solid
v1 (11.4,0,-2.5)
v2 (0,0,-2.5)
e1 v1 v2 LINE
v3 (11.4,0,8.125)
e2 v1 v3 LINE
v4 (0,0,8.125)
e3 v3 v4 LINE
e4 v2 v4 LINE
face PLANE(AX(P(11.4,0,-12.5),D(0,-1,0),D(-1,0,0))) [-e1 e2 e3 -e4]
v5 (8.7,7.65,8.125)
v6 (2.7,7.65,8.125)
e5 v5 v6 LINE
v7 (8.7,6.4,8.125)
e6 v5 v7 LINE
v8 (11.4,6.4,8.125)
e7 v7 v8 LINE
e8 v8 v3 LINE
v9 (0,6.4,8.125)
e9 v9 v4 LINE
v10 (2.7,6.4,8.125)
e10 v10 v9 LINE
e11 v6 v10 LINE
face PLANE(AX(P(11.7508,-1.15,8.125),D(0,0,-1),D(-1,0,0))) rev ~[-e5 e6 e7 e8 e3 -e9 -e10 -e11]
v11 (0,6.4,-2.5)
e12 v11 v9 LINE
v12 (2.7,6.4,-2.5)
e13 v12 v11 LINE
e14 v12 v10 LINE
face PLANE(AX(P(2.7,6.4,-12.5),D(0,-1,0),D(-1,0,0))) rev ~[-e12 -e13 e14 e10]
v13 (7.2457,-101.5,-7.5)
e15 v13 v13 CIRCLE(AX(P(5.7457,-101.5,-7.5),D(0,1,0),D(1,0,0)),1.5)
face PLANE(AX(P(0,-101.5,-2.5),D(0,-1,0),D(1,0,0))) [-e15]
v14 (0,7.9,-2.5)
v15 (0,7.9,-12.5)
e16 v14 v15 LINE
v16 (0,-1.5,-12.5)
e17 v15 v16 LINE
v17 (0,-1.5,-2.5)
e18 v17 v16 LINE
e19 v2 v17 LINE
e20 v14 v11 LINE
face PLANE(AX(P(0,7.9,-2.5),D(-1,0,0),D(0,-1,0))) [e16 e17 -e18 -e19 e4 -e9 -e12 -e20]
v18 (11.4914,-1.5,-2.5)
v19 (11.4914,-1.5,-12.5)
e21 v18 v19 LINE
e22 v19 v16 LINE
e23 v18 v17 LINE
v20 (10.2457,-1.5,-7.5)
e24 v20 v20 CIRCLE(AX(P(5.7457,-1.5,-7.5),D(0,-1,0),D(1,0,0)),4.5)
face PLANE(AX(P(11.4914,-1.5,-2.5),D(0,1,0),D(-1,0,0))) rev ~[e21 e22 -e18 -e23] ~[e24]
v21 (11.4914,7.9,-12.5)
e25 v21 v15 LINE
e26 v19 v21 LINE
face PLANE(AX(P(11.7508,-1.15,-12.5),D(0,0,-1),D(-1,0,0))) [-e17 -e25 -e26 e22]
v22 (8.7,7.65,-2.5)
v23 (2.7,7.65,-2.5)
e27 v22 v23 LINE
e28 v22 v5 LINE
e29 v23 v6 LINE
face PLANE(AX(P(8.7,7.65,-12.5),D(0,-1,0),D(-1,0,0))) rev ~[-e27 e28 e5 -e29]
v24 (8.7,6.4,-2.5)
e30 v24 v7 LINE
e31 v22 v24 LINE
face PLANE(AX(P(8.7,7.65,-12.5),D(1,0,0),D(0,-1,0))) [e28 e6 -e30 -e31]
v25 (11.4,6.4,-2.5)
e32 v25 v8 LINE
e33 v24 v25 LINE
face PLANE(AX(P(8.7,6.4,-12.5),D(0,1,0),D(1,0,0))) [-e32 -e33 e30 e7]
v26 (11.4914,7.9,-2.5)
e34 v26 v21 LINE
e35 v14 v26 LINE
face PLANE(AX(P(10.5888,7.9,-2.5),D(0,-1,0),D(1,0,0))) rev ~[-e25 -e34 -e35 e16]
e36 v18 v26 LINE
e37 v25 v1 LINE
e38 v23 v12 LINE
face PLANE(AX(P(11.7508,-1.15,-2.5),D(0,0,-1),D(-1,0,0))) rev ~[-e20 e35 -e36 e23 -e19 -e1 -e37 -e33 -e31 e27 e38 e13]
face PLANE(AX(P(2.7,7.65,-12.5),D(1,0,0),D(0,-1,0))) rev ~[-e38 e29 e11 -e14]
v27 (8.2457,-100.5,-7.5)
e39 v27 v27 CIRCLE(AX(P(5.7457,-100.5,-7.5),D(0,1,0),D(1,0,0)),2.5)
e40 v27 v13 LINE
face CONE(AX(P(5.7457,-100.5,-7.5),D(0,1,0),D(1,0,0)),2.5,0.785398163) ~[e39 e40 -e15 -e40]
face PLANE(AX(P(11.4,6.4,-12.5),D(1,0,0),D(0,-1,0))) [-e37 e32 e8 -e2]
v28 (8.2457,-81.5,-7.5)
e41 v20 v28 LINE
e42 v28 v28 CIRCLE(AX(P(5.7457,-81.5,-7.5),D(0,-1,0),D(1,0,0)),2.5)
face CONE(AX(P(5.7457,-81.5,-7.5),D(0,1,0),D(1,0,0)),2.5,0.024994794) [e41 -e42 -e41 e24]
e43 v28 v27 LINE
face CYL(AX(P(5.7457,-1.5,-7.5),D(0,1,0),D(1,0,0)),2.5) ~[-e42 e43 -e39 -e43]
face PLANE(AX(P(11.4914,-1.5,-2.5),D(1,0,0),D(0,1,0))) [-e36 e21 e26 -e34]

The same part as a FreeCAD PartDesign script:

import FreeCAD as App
import Part
import Sketcher
from FreeCAD import Vector


def edges_at(feature, points):
    """Names of the edges that pass closest to the given points."""
    edges = feature.Shape.Edges
    near = lambda p: min(range(len(edges)), key=lambda i: edges[i].distToShape(Part.Vertex(*p))[0])
    return sorted({f"Edge{near(p) + 1}" for p in points})


def add_polygon(sketch, points):
    """Adds a closed chain of lines whose ends are joined by coincident constraints."""
    first, n = sketch.GeometryCount, len(points)
    for a, b in zip(points, points[1:] + points[:1]):
        sketch.addGeometry(Part.LineSegment(App.Vector(*a, 0), App.Vector(*b, 0)), False)
    for i in range(n):
        sketch.addConstraint(Sketcher.Constraint("Coincident", first + i, 2, first + (i + 1) % n, 1))

doc = App.newDocument("Part")
body = doc.addObject("PartDesign::Body", "Body")

sketch1 = body.newObject("Sketcher::SketchObject", "Sketch")
sketch1.AttachmentSupport = (doc.getObject("XY_Plane"), [""])
sketch1.MapMode = "FlatFace"
sketch1.AttachmentOffset = App.Placement(Vector(0, 0, -2.5), App.Rotation())
add_polygon(sketch1, [(11, 8), (11, -2), (0, -2), (0, 8)])
sketch1.addConstraint(Sketcher.Constraint("Vertical", 0))
sketch1.addConstraint(Sketcher.Constraint("Horizontal", 1))
sketch1.addConstraint(Sketcher.Constraint("Vertical", 2))
sketch1.addConstraint(Sketcher.Constraint("Horizontal", 3))
sketch1.addConstraint(Sketcher.Constraint("PointOnObject", 1, 2, -2))
sketch1.addConstraint(Sketcher.Constraint("DistanceY", 0, 2, 0, 1, 9.4))
sketch1.addConstraint(Sketcher.Constraint("DistanceY", 0, 2, -1, 1, 1.5))
sketch1.addConstraint(Sketcher.Constraint("DistanceX", 1, 2, 1, 1, 11.4914))
pad1 = body.newObject("PartDesign::Pad", "Pad")
pad1.Profile = sketch1
pad1.Length = 10
pad1.Reversed = True

sketch2 = body.newObject("Sketcher::SketchObject", "Sketch001")
sketch2.AttachmentSupport = (doc.getObject("XZ_Plane"), [""])
sketch2.MapMode = "FlatFace"
sketch2.AttachmentOffset = App.Placement(Vector(0, 0, 1.5), App.Rotation())
sketch2.addGeometry(Part.Circle(Vector(5.7, -7.5, 0), Vector(0, 0, 1), 2.5), False)
sketch2.addConstraint(Sketcher.Constraint("Diameter", 0, 5.0))
sketch2.addConstraint(Sketcher.Constraint("DistanceY", 0, 3, -1, 1, 7.5))
sketch2.addConstraint(Sketcher.Constraint("DistanceX", -1, 1, 0, 3, 5.7457))
pad2 = body.newObject("PartDesign::Pad", "Pad001")
pad2.Profile = sketch2
pad2.Length = 100
doc.recompute()

chamfer = body.newObject("PartDesign::Chamfer", "Chamfer")
chamfer.Base = (pad2, edges_at(pad2, [(3.246, -1.5, -7.5)]))
chamfer.ChamferType = "Two distances"
chamfer.Size = 2
chamfer.Size2 = 80
doc.recompute()

chamfer2 = body.newObject("PartDesign::Chamfer", "Chamfer001")
chamfer2.Base = (chamfer, edges_at(chamfer, [(3.246, -101.5, -7.5)]))
chamfer2.Size = 1

sketch3 = body.newObject("Sketcher::SketchObject", "Sketch002")
sketch3.AttachmentSupport = (doc.getObject("XY_Plane"), [""])
sketch3.MapMode = "FlatFace"
sketch3.AttachmentOffset = App.Placement(Vector(0, 0, -12.5), App.Rotation())
add_polygon(sketch3, [(2.7, 7.7), (8.7, 7.7), (8.7, 6.4), (11.4, 6.4), (11.4, 0), (0, 0), (0, 6.4), (2.7, 6.4)])
sketch3.addConstraint(Sketcher.Constraint("Horizontal", 0))
sketch3.addConstraint(Sketcher.Constraint("Vertical", 1))
sketch3.addConstraint(Sketcher.Constraint("Horizontal", 2))
sketch3.addConstraint(Sketcher.Constraint("Vertical", 3))
sketch3.addConstraint(Sketcher.Constraint("Horizontal", 4))
sketch3.addConstraint(Sketcher.Constraint("Vertical", 5))
sketch3.addConstraint(Sketcher.Constraint("Horizontal", 6))
sketch3.addConstraint(Sketcher.Constraint("Vertical", 7))
sketch3.addConstraint(Sketcher.Constraint("Coincident", 4, 2, -1, 1))
sketch3.addConstraint(Sketcher.Constraint("Horizontal", 2, 2, 5, 2))
sketch3.addConstraint(Sketcher.Constraint("Equal", 2, 6))
sketch3.addConstraint(Sketcher.Constraint("DistanceX", 0, 1, 0, 2, 6.0))
sketch3.addConstraint(Sketcher.Constraint("DistanceX", 2, 1, 2, 2, 2.7))
sketch3.addConstraint(Sketcher.Constraint("DistanceY", 3, 2, 3, 1, 6.4))
sketch3.addConstraint(Sketcher.Constraint("DistanceY", 1, 2, 1, 1, 1.25))
pad3 = body.newObject("PartDesign::Pad", "Pad002")
pad3.Profile = sketch3
pad3.Length = 20.625

doc.recompute()
